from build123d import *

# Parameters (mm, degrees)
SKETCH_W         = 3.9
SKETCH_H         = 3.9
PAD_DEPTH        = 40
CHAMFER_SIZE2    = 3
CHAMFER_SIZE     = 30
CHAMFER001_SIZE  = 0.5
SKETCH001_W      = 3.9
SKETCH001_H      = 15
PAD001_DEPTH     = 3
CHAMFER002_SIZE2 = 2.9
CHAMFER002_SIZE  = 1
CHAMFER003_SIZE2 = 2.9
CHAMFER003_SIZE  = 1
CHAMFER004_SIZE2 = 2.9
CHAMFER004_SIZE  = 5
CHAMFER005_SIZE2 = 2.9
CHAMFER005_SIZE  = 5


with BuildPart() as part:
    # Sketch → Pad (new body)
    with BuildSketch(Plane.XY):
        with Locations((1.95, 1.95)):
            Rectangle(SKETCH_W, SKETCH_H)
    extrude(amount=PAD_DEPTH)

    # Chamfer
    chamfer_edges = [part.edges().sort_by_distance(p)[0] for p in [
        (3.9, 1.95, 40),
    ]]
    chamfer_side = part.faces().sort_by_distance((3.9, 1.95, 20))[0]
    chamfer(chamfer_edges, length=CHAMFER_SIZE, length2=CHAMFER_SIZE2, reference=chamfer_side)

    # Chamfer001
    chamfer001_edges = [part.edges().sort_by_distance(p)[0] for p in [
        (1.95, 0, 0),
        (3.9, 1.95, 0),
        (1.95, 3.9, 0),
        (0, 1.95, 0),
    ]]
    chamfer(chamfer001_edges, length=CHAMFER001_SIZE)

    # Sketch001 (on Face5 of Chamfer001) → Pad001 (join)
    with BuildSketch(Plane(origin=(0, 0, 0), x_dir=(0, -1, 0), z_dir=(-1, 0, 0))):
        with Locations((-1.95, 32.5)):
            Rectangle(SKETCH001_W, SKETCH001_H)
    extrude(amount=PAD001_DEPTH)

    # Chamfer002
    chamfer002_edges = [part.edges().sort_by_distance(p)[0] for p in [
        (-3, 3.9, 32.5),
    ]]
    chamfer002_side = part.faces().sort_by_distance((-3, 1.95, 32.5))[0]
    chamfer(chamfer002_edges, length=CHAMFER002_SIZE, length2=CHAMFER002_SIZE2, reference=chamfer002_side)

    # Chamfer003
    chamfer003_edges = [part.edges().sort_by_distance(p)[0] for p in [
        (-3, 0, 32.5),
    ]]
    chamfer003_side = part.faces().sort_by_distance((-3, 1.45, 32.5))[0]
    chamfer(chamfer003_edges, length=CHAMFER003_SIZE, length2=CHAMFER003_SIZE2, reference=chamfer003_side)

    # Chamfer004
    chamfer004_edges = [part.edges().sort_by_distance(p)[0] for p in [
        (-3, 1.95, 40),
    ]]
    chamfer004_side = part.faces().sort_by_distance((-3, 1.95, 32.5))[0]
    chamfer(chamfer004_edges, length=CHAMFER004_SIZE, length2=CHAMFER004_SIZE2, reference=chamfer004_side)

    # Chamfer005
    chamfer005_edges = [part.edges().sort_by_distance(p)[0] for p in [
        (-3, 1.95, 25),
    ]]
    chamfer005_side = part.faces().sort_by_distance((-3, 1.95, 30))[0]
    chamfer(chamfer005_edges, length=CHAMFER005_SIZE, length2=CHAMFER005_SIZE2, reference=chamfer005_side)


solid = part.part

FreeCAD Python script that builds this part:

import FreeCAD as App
import Part
import Sketcher

V = App.Vector
Q = App.Units.Quantity


def edges_at(feature, points):
    """Names of the edges that pass closest to the given points."""
    edges = feature.Shape.Edges
    near = lambda p: min(range(len(edges)), key=lambda i: edges[i].distToShape(Part.Vertex(*p))[0])
    return sorted({f"Edge{near(p) + 1}" for p in points})

doc = App.newDocument("Part")
body = doc.addObject("PartDesign::Body", "Body")

sketch1 = body.newObject("Sketcher::SketchObject", "Sketch")
sketch1.AttachmentSupport = (doc.getObject("XY_Plane"), [""])
sketch1.MapMode = "FlatFace"
sketch1.addGeometry([
    Part.LineSegment(V(0, 3.9, 0), V(0, 0, 0)),
    Part.LineSegment(V(0, 0, 0), V(3.9, 0, 0)),
    Part.LineSegment(V(3.9, 0, 0), V(3.9, 3.9, 0)),
    Part.LineSegment(V(3.9, 3.9, 0), V(0, 3.9, 0)),
], False)
sketch1.addConstraint([
    Sketcher.Constraint("Coincident", 0, 2, 1, 1),
    Sketcher.Constraint("Coincident", 1, 2, 2, 1),
    Sketcher.Constraint("Coincident", 2, 2, 3, 1),
    Sketcher.Constraint("Coincident", 3, 2, 0, 1),
    Sketcher.Constraint("Vertical", 0),
    Sketcher.Constraint("Horizontal", 1),
    Sketcher.Constraint("Vertical", 2),
    Sketcher.Constraint("Horizontal", 3),
    Sketcher.Constraint("Coincident", 0, 2, -1, 1),
    Sketcher.Constraint("Equal", 3, 0),
    Sketcher.Constraint("DistanceX", 1, 1, 1, 2, Q("3.9 mm")),
])
pad1 = body.newObject("PartDesign::Pad", "Pad")
pad1.Profile = sketch1
pad1.Length = 40
doc.recompute()

chamfer = body.newObject("PartDesign::Chamfer", "Chamfer")
chamfer.Base = (pad1, edges_at(pad1, [(3.9, 1.95, 40)]))
chamfer.ChamferType = "Two distances"
chamfer.Size = 30
chamfer.Size2 = 3
doc.recompute()

chamfer2 = body.newObject("PartDesign::Chamfer", "Chamfer001")
chamfer2.Base = (chamfer, edges_at(chamfer, [
    (1.95, 0, 0),
    (3.9, 1.95, 0),
    (1.95, 3.9, 0),
    (0, 1.95, 0),
]))
chamfer2.Size = 0.5

sketch2 = body.newObject("Sketcher::SketchObject", "Sketch001")
sketch2.AttachmentSupport = (doc.getObject("YZ_Plane"), [""])
sketch2.MapMode = "FlatFace"
sketch2.addGeometry([
    Part.LineSegment(V(3.9, 40, 0), V(3.9, 25, 0)),
    Part.LineSegment(V(3.9, 25, 0), V(0, 25, 0)),
    Part.LineSegment(V(0, 25, 0), V(0, 40, 0)),
    Part.LineSegment(V(0, 40, 0), V(3.9, 40, 0)),
], False)
sketch2.addConstraint([
    Sketcher.Constraint("Coincident", 0, 2, 1, 1),
    Sketcher.Constraint("Coincident", 1, 2, 2, 1),
    Sketcher.Constraint("Coincident", 2, 2, 3, 1),
    Sketcher.Constraint("Coincident", 3, 2, 0, 1),
    Sketcher.Constraint("Vertical", 0),
    Sketcher.Constraint("Horizontal", 1),
    Sketcher.Constraint("Vertical", 2),
    Sketcher.Constraint("Horizontal", 3),
    Sketcher.Constraint("PointOnObject", 1, 2, -2),
    Sketcher.Constraint("DistanceY", 0, 2, 0, 1, Q("15 mm")),
    Sketcher.Constraint("DistanceX", 1, 2, 1, 1, Q("3.9 mm")),
    Sketcher.Constraint("DistanceY", -1, 1, 0, 2, Q("25 mm")),
])
pad2 = body.newObject("PartDesign::Pad", "Pad001")
pad2.Profile = sketch2
pad2.Length = 3
pad2.Reversed = True
doc.recompute()

chamfer3 = body.newObject("PartDesign::Chamfer", "Chamfer002")
chamfer3.Base = (pad2, edges_at(pad2, [(-3, 3.9, 32.5)]))
chamfer3.ChamferType = "Two distances"
chamfer3.Size = 1
chamfer3.Size2 = 2.9
doc.recompute()

chamfer4 = body.newObject("PartDesign::Chamfer", "Chamfer003")
chamfer4.Base = (chamfer3, edges_at(chamfer3, [(-3, 0, 32.5)]))
chamfer4.ChamferType = "Two distances"
chamfer4.Size = 1
chamfer4.Size2 = 2.9
doc.recompute()

chamfer5 = body.newObject("PartDesign::Chamfer", "Chamfer004")
chamfer5.Base = (chamfer4, edges_at(chamfer4, [(-3, 1.95, 40)]))
chamfer5.ChamferType = "Two distances"
chamfer5.Size = 5
chamfer5.Size2 = 2.9
doc.recompute()

chamfer6 = body.newObject("PartDesign::Chamfer", "Chamfer005")
chamfer6.Base = (chamfer5, edges_at(chamfer5, [(-3, 1.95, 25)]))
chamfer6.ChamferType = "Two distances"
chamfer6.Size = 5
chamfer6.Size2 = 2.9

doc.recompute()
